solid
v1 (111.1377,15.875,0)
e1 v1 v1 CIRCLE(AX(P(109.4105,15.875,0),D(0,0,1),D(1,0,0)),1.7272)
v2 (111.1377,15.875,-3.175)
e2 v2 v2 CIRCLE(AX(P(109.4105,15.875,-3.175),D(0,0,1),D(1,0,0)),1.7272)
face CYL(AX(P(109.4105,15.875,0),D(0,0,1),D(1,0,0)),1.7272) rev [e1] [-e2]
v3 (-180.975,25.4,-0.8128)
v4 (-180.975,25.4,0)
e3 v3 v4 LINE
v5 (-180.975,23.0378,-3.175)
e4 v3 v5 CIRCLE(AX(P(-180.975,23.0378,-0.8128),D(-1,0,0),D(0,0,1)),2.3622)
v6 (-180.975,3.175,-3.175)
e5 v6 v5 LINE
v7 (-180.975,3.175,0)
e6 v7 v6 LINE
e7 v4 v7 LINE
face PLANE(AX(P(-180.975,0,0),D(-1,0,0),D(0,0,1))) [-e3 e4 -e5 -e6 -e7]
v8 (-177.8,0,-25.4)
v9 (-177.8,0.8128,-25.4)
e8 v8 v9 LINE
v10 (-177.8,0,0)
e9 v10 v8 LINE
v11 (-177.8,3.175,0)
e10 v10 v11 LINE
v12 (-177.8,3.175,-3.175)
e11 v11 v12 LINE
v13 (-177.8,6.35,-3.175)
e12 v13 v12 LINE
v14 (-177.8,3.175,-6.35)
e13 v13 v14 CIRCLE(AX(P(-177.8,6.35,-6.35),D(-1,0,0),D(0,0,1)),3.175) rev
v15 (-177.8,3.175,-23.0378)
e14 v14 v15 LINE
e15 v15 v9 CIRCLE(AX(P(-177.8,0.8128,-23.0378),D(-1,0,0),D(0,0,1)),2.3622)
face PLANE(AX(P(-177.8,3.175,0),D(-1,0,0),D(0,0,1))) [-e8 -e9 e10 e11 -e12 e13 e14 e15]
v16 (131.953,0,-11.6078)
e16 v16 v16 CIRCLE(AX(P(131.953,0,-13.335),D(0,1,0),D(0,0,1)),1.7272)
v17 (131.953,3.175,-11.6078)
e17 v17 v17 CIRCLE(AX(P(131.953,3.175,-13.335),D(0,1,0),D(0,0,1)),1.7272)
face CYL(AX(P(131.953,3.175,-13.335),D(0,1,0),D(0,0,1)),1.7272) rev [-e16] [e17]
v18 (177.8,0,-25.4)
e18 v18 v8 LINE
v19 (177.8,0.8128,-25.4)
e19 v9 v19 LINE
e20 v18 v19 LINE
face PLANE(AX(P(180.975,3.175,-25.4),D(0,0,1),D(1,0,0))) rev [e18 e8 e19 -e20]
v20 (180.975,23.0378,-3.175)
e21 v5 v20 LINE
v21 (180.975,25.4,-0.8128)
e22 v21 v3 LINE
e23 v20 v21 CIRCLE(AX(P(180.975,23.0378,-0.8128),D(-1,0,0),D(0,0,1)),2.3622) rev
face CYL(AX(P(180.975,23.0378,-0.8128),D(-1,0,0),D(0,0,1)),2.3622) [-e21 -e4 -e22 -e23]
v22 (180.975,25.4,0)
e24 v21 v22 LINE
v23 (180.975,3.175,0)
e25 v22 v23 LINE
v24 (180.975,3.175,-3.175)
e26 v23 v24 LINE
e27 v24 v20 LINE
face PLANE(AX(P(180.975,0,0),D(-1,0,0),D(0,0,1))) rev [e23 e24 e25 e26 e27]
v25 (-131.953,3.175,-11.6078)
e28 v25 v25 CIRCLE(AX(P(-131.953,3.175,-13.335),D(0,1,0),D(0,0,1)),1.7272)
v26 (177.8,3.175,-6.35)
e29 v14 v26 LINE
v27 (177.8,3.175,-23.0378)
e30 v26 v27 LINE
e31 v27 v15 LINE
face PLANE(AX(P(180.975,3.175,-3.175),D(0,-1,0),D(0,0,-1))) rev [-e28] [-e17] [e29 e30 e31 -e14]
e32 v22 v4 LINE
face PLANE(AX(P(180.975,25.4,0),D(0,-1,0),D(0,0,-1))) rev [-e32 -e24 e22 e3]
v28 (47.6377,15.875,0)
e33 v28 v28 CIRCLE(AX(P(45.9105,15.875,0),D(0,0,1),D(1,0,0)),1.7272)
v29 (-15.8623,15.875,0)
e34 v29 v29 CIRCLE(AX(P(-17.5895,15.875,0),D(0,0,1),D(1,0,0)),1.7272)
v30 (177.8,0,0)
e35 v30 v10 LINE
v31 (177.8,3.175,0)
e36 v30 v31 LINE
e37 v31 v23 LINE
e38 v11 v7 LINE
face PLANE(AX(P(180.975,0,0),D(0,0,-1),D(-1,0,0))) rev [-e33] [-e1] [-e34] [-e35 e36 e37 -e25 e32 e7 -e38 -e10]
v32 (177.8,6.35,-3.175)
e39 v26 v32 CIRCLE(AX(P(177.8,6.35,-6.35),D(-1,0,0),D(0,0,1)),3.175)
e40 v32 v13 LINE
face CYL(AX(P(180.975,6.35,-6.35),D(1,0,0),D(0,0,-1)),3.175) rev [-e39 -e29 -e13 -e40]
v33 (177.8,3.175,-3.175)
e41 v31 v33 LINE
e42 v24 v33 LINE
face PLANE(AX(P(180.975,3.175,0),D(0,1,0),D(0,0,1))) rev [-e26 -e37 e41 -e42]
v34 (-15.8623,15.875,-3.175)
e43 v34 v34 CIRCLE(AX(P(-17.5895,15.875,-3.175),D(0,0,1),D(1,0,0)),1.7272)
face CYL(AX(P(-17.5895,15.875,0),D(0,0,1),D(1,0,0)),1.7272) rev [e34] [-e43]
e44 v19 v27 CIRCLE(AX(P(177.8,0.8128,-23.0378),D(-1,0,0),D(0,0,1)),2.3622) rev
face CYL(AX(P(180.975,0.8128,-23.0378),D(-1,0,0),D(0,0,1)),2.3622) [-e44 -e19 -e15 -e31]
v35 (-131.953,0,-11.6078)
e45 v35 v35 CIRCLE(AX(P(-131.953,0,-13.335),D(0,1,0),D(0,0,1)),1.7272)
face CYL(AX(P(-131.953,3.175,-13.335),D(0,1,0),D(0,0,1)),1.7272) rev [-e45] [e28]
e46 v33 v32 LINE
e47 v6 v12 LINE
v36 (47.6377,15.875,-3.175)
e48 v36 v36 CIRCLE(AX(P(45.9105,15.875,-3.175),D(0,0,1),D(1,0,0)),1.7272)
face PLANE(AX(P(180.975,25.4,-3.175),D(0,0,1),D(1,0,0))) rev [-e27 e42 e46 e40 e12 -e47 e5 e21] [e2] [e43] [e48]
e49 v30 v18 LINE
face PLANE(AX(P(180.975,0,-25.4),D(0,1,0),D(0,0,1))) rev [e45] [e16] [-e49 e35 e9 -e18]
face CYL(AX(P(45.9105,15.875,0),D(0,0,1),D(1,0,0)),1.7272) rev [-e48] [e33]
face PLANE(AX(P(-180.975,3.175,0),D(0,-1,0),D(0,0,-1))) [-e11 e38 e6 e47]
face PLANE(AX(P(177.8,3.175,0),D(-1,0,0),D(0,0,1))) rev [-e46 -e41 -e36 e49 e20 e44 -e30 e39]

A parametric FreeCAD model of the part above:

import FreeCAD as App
import Part
import Sketcher

V = App.Vector
Q = App.Units.Quantity


def edges_at(feature, points):
    """Names of the edges that pass closest to the given points."""
    edges = feature.Shape.Edges
    near = lambda p: min(range(len(edges)), key=lambda i: edges[i].distToShape(Part.Vertex(*p))[0])
    return sorted({f"Edge{near(p) + 1}" for p in points})


def add_polygon(sketch, points):
    """Adds a closed chain of lines whose ends are joined by coincident constraints."""
    first, n = sketch.GeometryCount, len(points)
    for a, b in zip(points, points[1:] + points[:1]):
        sketch.addGeometry(Part.LineSegment(App.Vector(*a, 0), App.Vector(*b, 0)), False)
    for i in range(n):
        sketch.addConstraint(Sketcher.Constraint("Coincident", first + i, 2, first + (i + 1) % n, 1))

doc = App.newDocument("Part")
body = doc.addObject("PartDesign::Body", "Body")

# Sketch on YZ plane
sketch1 = body.newObject("Sketcher::SketchObject", "Sketch")
sketch1.AttachmentSupport = (doc.getObject("YZ_Plane"), [""])
sketch1.MapMode = "FlatFace"
add_polygon(sketch1, [(25.4, 0), (0, 0), (0, -25.4), (3.2, -25.4), (3.2, -3.2), (25.4, -3.2)])  # lines 0-5
sketch1.addConstraint([
    Sketcher.Constraint("Horizontal", 0),
    Sketcher.Constraint("Vertical", 1),
    Sketcher.Constraint("Horizontal", 2),
    Sketcher.Constraint("Vertical", 3),
    Sketcher.Constraint("Horizontal", 4),
    Sketcher.Constraint("Vertical", 5),
    Sketcher.Constraint("Coincident", 0, 2, -1, 1),
    Sketcher.Constraint("Equal", 0, 1),
    Sketcher.Constraint("Equal", 4, 3),
    Sketcher.Constraint("DistanceX", 0, 2, 0, 1, Q("1 in")),
    Sketcher.Constraint("DistanceX", 2, 1, 2, 2, Q("0.125 in")),
])
pad1 = body.newObject("PartDesign::Pad", "Pad")
pad1.Profile = sketch1
pad1.Length = Q("14.25 in")
pad1.Midplane = True

# Sketch on XY plane
sketch2 = body.newObject("Sketcher::SketchObject", "Sketch001")
sketch2.AttachmentSupport = (doc.getObject("XY_Plane"), [""])
sketch2.MapMode = "FlatFace"
sketch2.AttachmentOffset = App.Placement(V(0, 0, -1 * 25.4), App.Rotation())
add_polygon(sketch2, [(181, 3.2), (181, 0), (177.8, 0), (177.8, 3.2)])  # lines 0-3
sketch2.addConstraint([
    Sketcher.Constraint("Vertical", 0),
    Sketcher.Constraint("Horizontal", 1),
    Sketcher.Constraint("Vertical", 2),
    Sketcher.Constraint("Horizontal", 3),
    Sketcher.Constraint("PointOnObject", 0, 2, -1),
    Sketcher.Constraint("Equal", 3, 0),
    Sketcher.Constraint("DistanceX", -1, 1, 1, 2, Q("7 in")),
    Sketcher.Constraint("DistanceX", 1, 2, 1, 1, Q("0.125 in")),
])
pocket1 = body.newObject("PartDesign::Pocket", "Pocket")
pocket1.Profile = sketch2
pocket1.Type = "ThroughAll"
pocket1.Reversed = True
doc.recompute()

mirrored = body.newObject("PartDesign::Mirrored", "Mirrored")
mirrored.Originals = [pocket1]
mirrored.MirrorPlane = (doc.getObject("YZ_Plane"), [""])
body.Tip = mirrored

# Sketch on XY plane
sketch3 = body.newObject("Sketcher::SketchObject", "Sketch002")
sketch3.AttachmentSupport = (doc.getObject("XY_Plane"), [""])
sketch3.MapMode = "FlatFace"
sketch3.addGeometry([
    Part.Circle(V(109.4, 15.9, 0), V(0, 0, 1), 1.7),
    Part.Circle(V(45.9, 15.9, 0), V(0, 0, 1), 1.7),
    Part.Circle(V(-17.6, 15.9, 0), V(0, 0, 1), 1.7),
], False)
sketch3.addConstraint([
    Sketcher.Constraint("Equal", 0, 1),
    Sketcher.Constraint("Equal", 1, 2),
    Sketcher.Constraint("Horizontal", 0, 3, 1, 3),
    Sketcher.Constraint("Horizontal", 1, 3, 2, 3),
    Sketcher.Constraint("Diameter", 0, Q("0.136 in")),
    Sketcher.Constraint("DistanceX", 2, 3, 0, 3, Q("5 in")),
    Sketcher.Constraint("DistanceX", 1, 3, 0, 3, Q("2.5 in")),
    Sketcher.Constraint("DistanceY", -1, 1, 0, 3, Q("0.625 in")),
    Sketcher.Constraint("DistanceX", -1, 1, 0, 3, Q("4.3075 in")),
])
doc.recompute()
hole = body.newObject("PartDesign::Hole", "Hole")
hole.Profile = sketch3
hole.ThreadType = "None"
hole.Diameter = Q("0.136 in")
hole.DepthType = "ThroughAll"

# Sketch on XZ plane
sketch4 = body.newObject("Sketcher::SketchObject", "Sketch003")
sketch4.AttachmentSupport = (doc.getObject("XZ_Plane"), [""])
sketch4.MapMode = "FlatFace"
sketch4.AttachmentOffset = App.Placement(V(0, 0, -0.125 * 25.4), App.Rotation())
sketch4.addGeometry([
    Part.Circle(V(-132, -13.3, 0), V(0, 0, 1), 1.7),
    Part.Circle(V(132, -13.3, 0), V(0, 0, 1), 1.7),
], False)
sketch4.addConstraint([
    Sketcher.Constraint("Equal", 0, 1),
    Sketcher.Constraint("Symmetric", 0, 3, 1, 3, -2),
    Sketcher.Constraint("Diameter", 0, Q("0.136 in")),
    Sketcher.Constraint("DistanceX", 0, 3, 1, 3, Q("10.39 in")),
    Sketcher.Constraint("DistanceY", 0, 3, -1, 1, Q("0.525 in")),
])
doc.recompute()
hole2 = body.newObject("PartDesign::Hole", "Hole001")
hole2.Profile = sketch4
hole2.ThreadType = "None"
hole2.Diameter = Q("0.136 in")
hole2.DepthType = "Dimension"
hole2.Depth = Q("0.42 in")
hole2.DrillPoint = "Angled"
hole2.DrillPointAngle = 118
hole2.Reversed = True
doc.recompute()

fillet = body.newObject("PartDesign::Fillet", "Fillet")
fillet.Base = (hole2, edges_at(hole2, [(0, 3.175, -3.175)]))
fillet.Radius = Q("0.125 in")
doc.recompute()

fillet2 = body.newObject("PartDesign::Fillet", "Fillet001")
fillet2.Base = (fillet, edges_at(fillet, [(0, 25.4, -3.175), (0, 3.175, -25.4)]))
fillet2.Radius = Q("0.093 in")

doc.recompute()
